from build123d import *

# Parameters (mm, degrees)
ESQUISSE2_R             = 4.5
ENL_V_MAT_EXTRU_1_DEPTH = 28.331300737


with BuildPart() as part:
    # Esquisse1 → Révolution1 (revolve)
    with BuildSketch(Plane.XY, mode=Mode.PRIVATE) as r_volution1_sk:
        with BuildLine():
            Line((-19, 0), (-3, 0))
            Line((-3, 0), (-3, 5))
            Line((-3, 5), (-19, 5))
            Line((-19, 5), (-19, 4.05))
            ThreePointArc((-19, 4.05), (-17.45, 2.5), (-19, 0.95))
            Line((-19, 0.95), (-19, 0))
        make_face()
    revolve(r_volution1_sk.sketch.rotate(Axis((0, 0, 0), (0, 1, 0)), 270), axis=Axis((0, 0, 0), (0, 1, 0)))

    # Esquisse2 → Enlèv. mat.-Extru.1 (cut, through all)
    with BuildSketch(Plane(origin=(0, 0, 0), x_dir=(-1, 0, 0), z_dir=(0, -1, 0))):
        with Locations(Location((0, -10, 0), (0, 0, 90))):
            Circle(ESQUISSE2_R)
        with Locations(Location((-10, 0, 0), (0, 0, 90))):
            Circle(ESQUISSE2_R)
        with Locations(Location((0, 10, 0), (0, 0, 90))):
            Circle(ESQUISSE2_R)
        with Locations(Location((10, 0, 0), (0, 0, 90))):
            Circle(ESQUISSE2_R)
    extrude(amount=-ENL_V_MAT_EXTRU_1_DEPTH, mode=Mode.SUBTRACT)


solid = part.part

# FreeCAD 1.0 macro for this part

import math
import FreeCAD as App
import Part
import Sketcher

V = App.Vector
Q = App.Units.Quantity

doc = App.newDocument("Part")
body = doc.addObject("PartDesign::Body", "Body")

# Sketch on XY plane
sketch1 = doc.addObject("Sketcher::SketchObject", "Sketch")
body.addObject(sketch1)
sketch1.AttachmentSupport = (doc.XY_Plane, [""])
sketch1.MapMode = "FlatFace"
sketch1.addGeometry(Part.LineSegment(V(-19, 0, 0), V(-3, 0, 0)), False)
sketch1.addGeometry(Part.LineSegment(V(-3, 0, 0), V(-3, 5, 0)), False)
sketch1.addGeometry(Part.LineSegment(V(-3, 5, 0), V(-19, 5, 0)), False)
sketch1.addGeometry(Part.LineSegment(V(-19, 5, 0), V(-19, 4.05, 0)), False)
sketch1.addGeometry(Part.ArcOfCircle(Part.Circle(V(-19, 2.5, 0), V(0, 0, 1), 1.55), math.radians(-90), math.radians(90)), False)
sketch1.addGeometry(Part.LineSegment(V(-19, 0.95, 0), V(-19, 0, 0)), False)
sketch1.addConstraint(Sketcher.Constraint("Coincident", 0, 2, 1, 1))
sketch1.addConstraint(Sketcher.Constraint("Coincident", 1, 2, 2, 1))
sketch1.addConstraint(Sketcher.Constraint("Coincident", 2, 2, 3, 1))
sketch1.addConstraint(Sketcher.Constraint("Coincident", 3, 2, 4, 2))
sketch1.addConstraint(Sketcher.Constraint("Coincident", 4, 1, 5, 1))
sketch1.addConstraint(Sketcher.Constraint("Coincident", 5, 2, 0, 1))
sketch1.addConstraint(Sketcher.Constraint("Horizontal", 0))
sketch1.addConstraint(Sketcher.Constraint("Vertical", 1))
sketch1.addConstraint(Sketcher.Constraint("Horizontal", 2))
sketch1.addConstraint(Sketcher.Constraint("Vertical", 3))
sketch1.addConstraint(Sketcher.Constraint("Vertical", 5))
sketch1.addConstraint(Sketcher.Constraint("PointOnObject", 0, 2, -1))
sketch1.addConstraint(Sketcher.Constraint("Vertical", 4, 3, 2, 2))
sketch1.addConstraint(Sketcher.Constraint("Vertical", 3, 2, 4, 1))
sketch1.addConstraint(Sketcher.Constraint("Equal", 3, 5))
sketch1.addConstraint(Sketcher.Constraint("DistanceX", 0, 1, 0, 2, Q("16 mm")))
sketch1.addConstraint(Sketcher.Constraint("DistanceY", 1, 1, 1, 2, Q("5 mm")))
sketch1.addConstraint(Sketcher.Constraint("Radius", 4, Q("1.55 mm")))
sketch1.addConstraint(Sketcher.Constraint("DistanceX", 4, 3, -1, 1, Q("19 mm")))
revolution = doc.addObject("PartDesign::Revolution", "Revolution")
body.addObject(revolution)
revolution.Profile = sketch1
revolution.ReferenceAxis = (sketch1, ["V_Axis"])
revolution.Angle = 360

# Sketch on XZ plane
sketch2 = doc.addObject("Sketcher::SketchObject", "Sketch001")
body.addObject(sketch2)
sketch2.AttachmentSupport = (doc.XZ_Plane, [""])
sketch2.MapMode = "FlatFace"
sketch2.addGeometry(Part.Circle(V(0, 10, 0), V(0, 0, 1), 4.5), False)
sketch2.addGeometry(Part.Circle(V(10, 0, 0), V(0, 0, 1), 4.5), False)
sketch2.addGeometry(Part.Circle(V(0, -10, 0), V(0, 0, 1), 4.5), False)
sketch2.addGeometry(Part.Circle(V(-10, 0, 0), V(0, 0, 1), 4.5), False)
sketch2.addConstraint(Sketcher.Constraint("Equal", 0, 1))
sketch2.addConstraint(Sketcher.Constraint("Equal", 1, 2))
sketch2.addConstraint(Sketcher.Constraint("Equal", 2, 3))
sketch2.addConstraint(Sketcher.Constraint("Symmetric", 0, 3, 2, 3, -1, 1))
sketch2.addConstraint(Sketcher.Constraint("Symmetric", 1, 3, 3, 3, -1, 1))
sketch2.addConstraint(Sketcher.Constraint("PointOnObject", 0, 3, -2))
sketch2.addConstraint(Sketcher.Constraint("PointOnObject", 1, 3, -1))
sketch2.addConstraint(Sketcher.Constraint("Diameter", 0, Q("9 mm")))
sketch2.addConstraint(Sketcher.Constraint("DistanceY", -1, 1, 0, 3, Q("10 mm")))
sketch2.addConstraint(Sketcher.Constraint("DistanceX", -1, 1, 1, 3, Q("10 mm")))
pocket1 = doc.addObject("PartDesign::Pocket", "Pocket")
body.addObject(pocket1)
pocket1.Profile = sketch2
pocket1.Type = "ThroughAll"

doc.recompute()
